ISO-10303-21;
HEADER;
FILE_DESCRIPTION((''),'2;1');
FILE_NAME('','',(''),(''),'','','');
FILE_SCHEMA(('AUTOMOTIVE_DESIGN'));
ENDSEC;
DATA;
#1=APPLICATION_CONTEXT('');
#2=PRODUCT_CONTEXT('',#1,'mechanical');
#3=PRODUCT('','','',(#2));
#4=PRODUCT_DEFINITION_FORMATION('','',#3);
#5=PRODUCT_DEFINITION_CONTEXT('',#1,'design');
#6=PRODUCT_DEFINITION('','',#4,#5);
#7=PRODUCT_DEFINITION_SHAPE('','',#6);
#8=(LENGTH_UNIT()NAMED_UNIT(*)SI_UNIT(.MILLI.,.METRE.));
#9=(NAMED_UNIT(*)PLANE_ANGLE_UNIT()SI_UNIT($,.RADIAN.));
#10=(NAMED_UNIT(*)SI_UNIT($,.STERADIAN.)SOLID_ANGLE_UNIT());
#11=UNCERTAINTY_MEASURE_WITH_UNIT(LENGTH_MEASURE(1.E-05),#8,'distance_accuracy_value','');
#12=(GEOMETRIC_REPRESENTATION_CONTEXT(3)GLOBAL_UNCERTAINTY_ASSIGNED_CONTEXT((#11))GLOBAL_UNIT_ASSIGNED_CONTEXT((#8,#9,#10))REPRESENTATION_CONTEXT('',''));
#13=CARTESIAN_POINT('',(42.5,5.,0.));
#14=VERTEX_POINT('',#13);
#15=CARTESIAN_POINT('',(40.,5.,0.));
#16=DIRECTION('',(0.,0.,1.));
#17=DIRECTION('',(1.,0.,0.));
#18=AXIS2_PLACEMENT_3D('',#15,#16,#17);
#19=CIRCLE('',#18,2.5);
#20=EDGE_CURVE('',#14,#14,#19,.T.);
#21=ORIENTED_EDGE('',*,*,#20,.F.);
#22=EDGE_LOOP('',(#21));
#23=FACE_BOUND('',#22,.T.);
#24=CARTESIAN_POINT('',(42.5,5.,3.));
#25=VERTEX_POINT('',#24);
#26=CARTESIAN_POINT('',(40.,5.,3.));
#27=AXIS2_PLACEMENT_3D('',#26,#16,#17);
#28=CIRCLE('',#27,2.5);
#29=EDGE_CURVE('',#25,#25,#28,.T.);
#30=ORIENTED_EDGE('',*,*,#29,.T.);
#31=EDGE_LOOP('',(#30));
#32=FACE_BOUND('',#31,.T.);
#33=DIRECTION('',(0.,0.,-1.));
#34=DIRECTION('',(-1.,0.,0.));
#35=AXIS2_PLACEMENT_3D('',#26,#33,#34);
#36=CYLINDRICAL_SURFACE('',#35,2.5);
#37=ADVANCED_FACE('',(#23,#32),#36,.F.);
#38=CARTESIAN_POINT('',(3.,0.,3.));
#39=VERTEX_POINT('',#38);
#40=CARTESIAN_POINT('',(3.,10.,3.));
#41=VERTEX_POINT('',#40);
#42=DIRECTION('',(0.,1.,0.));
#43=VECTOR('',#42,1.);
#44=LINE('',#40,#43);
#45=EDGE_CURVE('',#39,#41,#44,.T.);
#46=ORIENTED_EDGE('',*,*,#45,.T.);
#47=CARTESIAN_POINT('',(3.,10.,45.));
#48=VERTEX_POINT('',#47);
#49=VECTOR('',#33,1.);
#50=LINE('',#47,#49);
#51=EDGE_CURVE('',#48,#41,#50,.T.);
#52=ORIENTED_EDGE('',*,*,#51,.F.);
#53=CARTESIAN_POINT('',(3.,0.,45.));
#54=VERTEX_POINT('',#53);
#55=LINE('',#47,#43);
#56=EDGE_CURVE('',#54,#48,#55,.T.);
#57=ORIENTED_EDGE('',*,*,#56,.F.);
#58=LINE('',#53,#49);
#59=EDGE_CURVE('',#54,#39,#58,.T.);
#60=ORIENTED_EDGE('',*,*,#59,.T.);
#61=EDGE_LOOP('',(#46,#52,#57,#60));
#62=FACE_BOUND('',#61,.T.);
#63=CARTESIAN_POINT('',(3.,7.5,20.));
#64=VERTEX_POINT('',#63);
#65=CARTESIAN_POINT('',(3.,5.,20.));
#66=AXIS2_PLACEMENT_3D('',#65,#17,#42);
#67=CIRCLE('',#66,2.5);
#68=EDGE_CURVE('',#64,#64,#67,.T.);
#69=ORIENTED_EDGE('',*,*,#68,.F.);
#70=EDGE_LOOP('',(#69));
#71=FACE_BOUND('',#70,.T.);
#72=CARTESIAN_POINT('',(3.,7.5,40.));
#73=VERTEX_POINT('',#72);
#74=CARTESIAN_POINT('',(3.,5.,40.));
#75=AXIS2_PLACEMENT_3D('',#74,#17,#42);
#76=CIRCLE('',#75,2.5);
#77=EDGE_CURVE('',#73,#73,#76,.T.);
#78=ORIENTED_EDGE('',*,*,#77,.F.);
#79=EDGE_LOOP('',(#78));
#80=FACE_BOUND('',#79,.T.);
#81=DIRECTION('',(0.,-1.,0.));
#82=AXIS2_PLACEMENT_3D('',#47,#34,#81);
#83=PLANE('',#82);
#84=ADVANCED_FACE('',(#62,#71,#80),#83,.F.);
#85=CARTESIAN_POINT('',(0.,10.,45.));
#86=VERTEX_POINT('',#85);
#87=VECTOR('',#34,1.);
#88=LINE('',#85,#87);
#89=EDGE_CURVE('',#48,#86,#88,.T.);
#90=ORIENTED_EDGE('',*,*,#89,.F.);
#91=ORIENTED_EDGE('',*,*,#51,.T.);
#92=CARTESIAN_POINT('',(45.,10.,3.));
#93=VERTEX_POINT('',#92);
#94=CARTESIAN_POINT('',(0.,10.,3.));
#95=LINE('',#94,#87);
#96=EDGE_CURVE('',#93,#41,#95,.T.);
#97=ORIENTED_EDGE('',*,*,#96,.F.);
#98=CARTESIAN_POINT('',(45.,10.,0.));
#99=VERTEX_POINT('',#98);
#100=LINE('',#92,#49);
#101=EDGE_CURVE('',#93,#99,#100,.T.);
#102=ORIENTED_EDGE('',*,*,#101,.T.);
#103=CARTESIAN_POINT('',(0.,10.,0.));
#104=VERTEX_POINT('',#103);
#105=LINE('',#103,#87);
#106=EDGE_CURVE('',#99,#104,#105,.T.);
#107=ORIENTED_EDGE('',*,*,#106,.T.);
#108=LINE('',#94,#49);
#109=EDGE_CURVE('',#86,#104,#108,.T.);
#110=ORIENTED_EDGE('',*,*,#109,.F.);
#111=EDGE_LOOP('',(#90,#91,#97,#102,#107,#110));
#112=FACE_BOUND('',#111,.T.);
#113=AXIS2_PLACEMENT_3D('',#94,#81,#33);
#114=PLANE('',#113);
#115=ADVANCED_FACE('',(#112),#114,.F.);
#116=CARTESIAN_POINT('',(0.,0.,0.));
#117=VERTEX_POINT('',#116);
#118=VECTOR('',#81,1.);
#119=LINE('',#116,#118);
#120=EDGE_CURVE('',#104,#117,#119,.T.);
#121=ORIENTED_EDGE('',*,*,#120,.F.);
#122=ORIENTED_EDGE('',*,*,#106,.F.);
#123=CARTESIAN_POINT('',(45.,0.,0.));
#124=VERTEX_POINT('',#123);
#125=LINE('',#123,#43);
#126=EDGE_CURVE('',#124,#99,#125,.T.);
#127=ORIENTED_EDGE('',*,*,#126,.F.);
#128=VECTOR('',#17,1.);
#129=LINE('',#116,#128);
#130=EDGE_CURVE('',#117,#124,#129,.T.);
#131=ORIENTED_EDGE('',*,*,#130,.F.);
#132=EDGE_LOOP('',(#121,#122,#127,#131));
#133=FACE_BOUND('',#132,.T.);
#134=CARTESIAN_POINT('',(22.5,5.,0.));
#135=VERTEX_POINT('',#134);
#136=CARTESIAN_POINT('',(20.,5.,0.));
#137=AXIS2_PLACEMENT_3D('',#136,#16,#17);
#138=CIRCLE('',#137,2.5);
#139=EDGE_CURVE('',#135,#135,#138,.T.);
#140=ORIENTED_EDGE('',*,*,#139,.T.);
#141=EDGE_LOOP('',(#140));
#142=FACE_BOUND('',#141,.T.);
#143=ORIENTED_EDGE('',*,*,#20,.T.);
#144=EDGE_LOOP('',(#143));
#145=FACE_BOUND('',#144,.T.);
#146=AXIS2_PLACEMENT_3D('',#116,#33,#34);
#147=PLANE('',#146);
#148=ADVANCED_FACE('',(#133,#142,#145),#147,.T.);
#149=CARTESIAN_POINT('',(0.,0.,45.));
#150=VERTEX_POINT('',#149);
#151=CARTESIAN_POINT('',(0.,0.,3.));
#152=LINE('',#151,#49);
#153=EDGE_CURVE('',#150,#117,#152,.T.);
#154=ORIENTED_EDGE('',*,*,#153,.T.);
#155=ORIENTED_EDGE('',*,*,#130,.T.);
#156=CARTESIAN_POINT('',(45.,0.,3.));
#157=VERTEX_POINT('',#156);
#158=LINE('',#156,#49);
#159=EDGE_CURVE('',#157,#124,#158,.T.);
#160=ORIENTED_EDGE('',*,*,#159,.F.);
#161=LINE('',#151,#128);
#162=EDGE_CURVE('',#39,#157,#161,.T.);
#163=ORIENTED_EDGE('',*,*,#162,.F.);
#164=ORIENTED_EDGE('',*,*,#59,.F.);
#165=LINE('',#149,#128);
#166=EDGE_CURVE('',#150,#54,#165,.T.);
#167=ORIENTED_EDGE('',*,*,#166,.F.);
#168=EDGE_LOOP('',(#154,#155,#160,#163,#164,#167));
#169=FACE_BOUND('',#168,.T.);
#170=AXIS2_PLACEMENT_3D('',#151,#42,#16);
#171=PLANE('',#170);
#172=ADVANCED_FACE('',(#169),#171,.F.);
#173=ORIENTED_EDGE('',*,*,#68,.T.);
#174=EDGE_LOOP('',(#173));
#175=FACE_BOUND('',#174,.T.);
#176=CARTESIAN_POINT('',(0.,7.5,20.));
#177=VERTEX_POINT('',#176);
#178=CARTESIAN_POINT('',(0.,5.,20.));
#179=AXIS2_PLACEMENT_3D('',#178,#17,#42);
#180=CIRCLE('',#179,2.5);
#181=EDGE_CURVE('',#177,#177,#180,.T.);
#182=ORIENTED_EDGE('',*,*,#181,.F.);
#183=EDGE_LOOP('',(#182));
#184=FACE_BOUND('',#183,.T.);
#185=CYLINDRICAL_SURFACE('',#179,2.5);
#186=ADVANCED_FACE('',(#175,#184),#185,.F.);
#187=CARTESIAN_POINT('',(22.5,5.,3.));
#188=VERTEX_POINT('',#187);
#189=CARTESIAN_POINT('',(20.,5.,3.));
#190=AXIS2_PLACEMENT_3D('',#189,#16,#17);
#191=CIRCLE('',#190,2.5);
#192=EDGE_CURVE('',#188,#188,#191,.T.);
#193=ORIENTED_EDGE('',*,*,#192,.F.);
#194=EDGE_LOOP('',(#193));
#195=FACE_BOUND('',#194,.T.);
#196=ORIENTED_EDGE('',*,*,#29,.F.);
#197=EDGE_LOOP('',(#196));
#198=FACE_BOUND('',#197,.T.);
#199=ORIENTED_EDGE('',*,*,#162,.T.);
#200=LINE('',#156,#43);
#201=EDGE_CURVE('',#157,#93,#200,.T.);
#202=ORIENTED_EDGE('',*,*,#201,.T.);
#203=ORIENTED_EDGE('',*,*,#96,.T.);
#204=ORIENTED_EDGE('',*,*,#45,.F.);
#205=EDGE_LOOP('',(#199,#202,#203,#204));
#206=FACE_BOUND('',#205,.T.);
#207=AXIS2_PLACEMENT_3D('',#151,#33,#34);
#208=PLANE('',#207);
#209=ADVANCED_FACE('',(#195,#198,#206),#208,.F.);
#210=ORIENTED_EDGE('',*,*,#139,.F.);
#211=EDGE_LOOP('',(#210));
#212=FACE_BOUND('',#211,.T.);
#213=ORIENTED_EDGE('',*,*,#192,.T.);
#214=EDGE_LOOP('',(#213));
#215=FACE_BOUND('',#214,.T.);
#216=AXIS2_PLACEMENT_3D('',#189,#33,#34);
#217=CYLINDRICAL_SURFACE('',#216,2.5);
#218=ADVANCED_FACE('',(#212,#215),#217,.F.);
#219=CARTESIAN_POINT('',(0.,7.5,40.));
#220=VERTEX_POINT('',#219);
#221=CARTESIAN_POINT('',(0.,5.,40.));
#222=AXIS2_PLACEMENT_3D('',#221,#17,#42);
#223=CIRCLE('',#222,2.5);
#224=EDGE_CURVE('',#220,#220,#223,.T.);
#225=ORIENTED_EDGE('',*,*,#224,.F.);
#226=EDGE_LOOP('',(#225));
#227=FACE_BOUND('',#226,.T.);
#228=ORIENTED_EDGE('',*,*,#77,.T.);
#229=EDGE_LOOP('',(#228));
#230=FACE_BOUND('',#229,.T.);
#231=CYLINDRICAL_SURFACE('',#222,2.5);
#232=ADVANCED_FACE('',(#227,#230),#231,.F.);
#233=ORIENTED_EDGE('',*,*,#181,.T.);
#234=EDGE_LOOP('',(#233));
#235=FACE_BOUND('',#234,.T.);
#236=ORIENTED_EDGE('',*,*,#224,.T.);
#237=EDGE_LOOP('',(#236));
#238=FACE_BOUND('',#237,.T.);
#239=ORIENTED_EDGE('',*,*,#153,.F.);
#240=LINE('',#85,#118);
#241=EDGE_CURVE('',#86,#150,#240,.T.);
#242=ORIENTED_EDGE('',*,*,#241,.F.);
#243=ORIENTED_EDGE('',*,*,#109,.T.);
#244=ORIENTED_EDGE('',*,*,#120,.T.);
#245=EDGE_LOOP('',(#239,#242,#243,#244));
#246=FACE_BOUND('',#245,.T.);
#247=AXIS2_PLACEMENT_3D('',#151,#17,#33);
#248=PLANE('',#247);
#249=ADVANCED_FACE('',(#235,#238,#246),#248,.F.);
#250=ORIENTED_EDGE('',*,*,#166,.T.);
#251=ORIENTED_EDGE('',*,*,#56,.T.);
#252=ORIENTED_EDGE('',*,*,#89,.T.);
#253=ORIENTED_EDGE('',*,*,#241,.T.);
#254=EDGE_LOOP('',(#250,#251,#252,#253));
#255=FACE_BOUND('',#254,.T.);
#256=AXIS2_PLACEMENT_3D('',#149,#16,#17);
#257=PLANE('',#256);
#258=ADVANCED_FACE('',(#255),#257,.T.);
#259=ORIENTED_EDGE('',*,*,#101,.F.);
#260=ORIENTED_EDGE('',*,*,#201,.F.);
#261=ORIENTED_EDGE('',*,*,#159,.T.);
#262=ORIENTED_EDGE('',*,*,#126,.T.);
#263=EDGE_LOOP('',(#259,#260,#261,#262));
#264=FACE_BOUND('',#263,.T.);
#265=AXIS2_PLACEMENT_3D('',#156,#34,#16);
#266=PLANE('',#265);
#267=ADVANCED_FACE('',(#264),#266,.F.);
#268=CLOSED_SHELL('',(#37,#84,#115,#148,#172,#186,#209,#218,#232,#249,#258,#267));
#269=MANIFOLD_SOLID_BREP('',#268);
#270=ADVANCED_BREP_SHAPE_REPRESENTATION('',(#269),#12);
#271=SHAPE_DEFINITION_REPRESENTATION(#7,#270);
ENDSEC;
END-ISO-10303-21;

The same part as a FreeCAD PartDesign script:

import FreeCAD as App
import Part
import Sketcher

V = App.Vector
Q = App.Units.Quantity


def add_polygon(sketch, points):
    """Adds a closed chain of lines whose ends are joined by coincident constraints."""
    first, n = sketch.GeometryCount, len(points)
    for a, b in zip(points, points[1:] + points[:1]):
        sketch.addGeometry(Part.LineSegment(App.Vector(*a, 0), App.Vector(*b, 0)), False)
    for i in range(n):
        sketch.addConstraint(Sketcher.Constraint("Coincident", first + i, 2, first + (i + 1) % n, 1))

doc = App.newDocument("Part")
params = doc.addObject("Spreadsheet::Sheet", "Params")
for row, (alias, value) in enumerate([
    ("sketch1_diameter", "5 mm"),
    ("sketch1_width", "45 mm"),
    ("sketch1_height", "10 mm"),
    ("pad1_length", "3 mm"),
    ("sketch2_width", "3 mm"),
    ("sketch2_height", "10 mm"),
    ("pad2_length", "42 mm"),
    ("sketch3_diameter", "5 mm"),
    ("pocket1_length", "3 mm"),
], start=1):
    params.set(f"A{row}", alias)
    params.set(f"B{row}", "=" + value)
    params.setAlias(f"B{row}", alias)

body = doc.addObject("PartDesign::Body", "Body")

sketch1 = body.newObject("Sketcher::SketchObject", "Sketch")
sketch1.AttachmentSupport = (doc.getObject("XY_Plane"), [""])
sketch1.MapMode = "FlatFace"
add_polygon(sketch1, [(0, 10), (0, 0), (45, 0), (45, 10)])
sketch1.addGeometry(Part.Circle(V(20, 5, 0), V(0, 0, 1), 2.5), False)
sketch1.addGeometry(Part.Circle(V(40, 5, 0), V(0, 0, 1), 2.5), False)
sketch1.addConstraint([
    Sketcher.Constraint("Vertical", 0),
    Sketcher.Constraint("Horizontal", 1),
    Sketcher.Constraint("Vertical", 2),
    Sketcher.Constraint("Horizontal", 3),
    Sketcher.Constraint("Coincident", 0, 2, -1, 1),
    Sketcher.Constraint("Equal", 4, 5),
    Sketcher.Constraint("Horizontal", 4, 3, 5, 3),
    Sketcher.Constraint("Diameter", 4, Q("5 mm")),
    Sketcher.Constraint("DistanceX", 1, 1, 1, 2, Q("45 mm")),
    Sketcher.Constraint("DistanceY", 0, 2, 0, 1, Q("10 mm")),
    Sketcher.Constraint("DistanceX", -1, 1, 4, 3, Q("20 mm")),
    Sketcher.Constraint("DistanceY", -1, 1, 4, 3, Q("5 mm")),
    Sketcher.Constraint("DistanceX", -1, 1, 5, 3, Q("40 mm")),
])
sketch1.setExpression("Constraints[11]", "Params.sketch1_diameter")
sketch1.setExpression("Constraints[12]", "Params.sketch1_width")
sketch1.setExpression("Constraints[13]", "Params.sketch1_height")
pad1 = body.newObject("PartDesign::Pad", "Pad")
pad1.Profile = sketch1
pad1.setExpression("Length", "Params.pad1_length")

sketch2 = body.newObject("Sketcher::SketchObject", "Sketch001")
sketch2.AttachmentSupport = (doc.getObject("XY_Plane"), [""])
sketch2.MapMode = "FlatFace"
sketch2.AttachmentOffset = App.Placement(V(0, 0, 3), App.Rotation())
add_polygon(sketch2, [(0, 10), (0, 0), (3, 0), (3, 10)])
sketch2.addConstraint([
    Sketcher.Constraint("Vertical", 0),
    Sketcher.Constraint("Horizontal", 1),
    Sketcher.Constraint("Vertical", 2),
    Sketcher.Constraint("Horizontal", 3),
    Sketcher.Constraint("Coincident", 0, 2, -1, 1),
    Sketcher.Constraint("DistanceX", 1, 1, 1, 2, Q("3 mm")),
    Sketcher.Constraint("DistanceY", 0, 2, 0, 1, Q("10 mm")),
])
sketch2.setExpression("Constraints[9]", "Params.sketch2_width")
sketch2.setExpression("Constraints[10]", "Params.sketch2_height")
pad2 = body.newObject("PartDesign::Pad", "Pad001")
pad2.Profile = sketch2
pad2.setExpression("Length", "Params.pad2_length")

sketch3 = body.newObject("Sketcher::SketchObject", "Sketch002")
sketch3.AttachmentSupport = (doc.getObject("YZ_Plane"), [""])
sketch3.MapMode = "FlatFace"
sketch3.AttachmentOffset = App.Placement(V(0, 0, 3), App.Rotation())
sketch3.addGeometry([
    Part.Circle(V(5, 20, 0), V(0, 0, 1), 2.5),
    Part.Circle(V(5, 40, 0), V(0, 0, 1), 2.5),
], False)
sketch3.addConstraint([
    Sketcher.Constraint("Equal", 0, 1),
    Sketcher.Constraint("Vertical", 0, 3, 1, 3),
    Sketcher.Constraint("Diameter", 0, Q("5 mm")),
    Sketcher.Constraint("DistanceX", -1, 1, 0, 3, Q("5 mm")),
    Sketcher.Constraint("DistanceY", -1, 1, 0, 3, Q("20 mm")),
    Sketcher.Constraint("DistanceY", -1, 1, 1, 3, Q("40 mm")),
])
sketch3.setExpression("Constraints[2]", "Params.sketch3_diameter")
pocket1 = body.newObject("PartDesign::Pocket", "Pocket")
pocket1.Profile = sketch3
pocket1.setExpression("Length", "Params.pocket1_length")

doc.recompute()
